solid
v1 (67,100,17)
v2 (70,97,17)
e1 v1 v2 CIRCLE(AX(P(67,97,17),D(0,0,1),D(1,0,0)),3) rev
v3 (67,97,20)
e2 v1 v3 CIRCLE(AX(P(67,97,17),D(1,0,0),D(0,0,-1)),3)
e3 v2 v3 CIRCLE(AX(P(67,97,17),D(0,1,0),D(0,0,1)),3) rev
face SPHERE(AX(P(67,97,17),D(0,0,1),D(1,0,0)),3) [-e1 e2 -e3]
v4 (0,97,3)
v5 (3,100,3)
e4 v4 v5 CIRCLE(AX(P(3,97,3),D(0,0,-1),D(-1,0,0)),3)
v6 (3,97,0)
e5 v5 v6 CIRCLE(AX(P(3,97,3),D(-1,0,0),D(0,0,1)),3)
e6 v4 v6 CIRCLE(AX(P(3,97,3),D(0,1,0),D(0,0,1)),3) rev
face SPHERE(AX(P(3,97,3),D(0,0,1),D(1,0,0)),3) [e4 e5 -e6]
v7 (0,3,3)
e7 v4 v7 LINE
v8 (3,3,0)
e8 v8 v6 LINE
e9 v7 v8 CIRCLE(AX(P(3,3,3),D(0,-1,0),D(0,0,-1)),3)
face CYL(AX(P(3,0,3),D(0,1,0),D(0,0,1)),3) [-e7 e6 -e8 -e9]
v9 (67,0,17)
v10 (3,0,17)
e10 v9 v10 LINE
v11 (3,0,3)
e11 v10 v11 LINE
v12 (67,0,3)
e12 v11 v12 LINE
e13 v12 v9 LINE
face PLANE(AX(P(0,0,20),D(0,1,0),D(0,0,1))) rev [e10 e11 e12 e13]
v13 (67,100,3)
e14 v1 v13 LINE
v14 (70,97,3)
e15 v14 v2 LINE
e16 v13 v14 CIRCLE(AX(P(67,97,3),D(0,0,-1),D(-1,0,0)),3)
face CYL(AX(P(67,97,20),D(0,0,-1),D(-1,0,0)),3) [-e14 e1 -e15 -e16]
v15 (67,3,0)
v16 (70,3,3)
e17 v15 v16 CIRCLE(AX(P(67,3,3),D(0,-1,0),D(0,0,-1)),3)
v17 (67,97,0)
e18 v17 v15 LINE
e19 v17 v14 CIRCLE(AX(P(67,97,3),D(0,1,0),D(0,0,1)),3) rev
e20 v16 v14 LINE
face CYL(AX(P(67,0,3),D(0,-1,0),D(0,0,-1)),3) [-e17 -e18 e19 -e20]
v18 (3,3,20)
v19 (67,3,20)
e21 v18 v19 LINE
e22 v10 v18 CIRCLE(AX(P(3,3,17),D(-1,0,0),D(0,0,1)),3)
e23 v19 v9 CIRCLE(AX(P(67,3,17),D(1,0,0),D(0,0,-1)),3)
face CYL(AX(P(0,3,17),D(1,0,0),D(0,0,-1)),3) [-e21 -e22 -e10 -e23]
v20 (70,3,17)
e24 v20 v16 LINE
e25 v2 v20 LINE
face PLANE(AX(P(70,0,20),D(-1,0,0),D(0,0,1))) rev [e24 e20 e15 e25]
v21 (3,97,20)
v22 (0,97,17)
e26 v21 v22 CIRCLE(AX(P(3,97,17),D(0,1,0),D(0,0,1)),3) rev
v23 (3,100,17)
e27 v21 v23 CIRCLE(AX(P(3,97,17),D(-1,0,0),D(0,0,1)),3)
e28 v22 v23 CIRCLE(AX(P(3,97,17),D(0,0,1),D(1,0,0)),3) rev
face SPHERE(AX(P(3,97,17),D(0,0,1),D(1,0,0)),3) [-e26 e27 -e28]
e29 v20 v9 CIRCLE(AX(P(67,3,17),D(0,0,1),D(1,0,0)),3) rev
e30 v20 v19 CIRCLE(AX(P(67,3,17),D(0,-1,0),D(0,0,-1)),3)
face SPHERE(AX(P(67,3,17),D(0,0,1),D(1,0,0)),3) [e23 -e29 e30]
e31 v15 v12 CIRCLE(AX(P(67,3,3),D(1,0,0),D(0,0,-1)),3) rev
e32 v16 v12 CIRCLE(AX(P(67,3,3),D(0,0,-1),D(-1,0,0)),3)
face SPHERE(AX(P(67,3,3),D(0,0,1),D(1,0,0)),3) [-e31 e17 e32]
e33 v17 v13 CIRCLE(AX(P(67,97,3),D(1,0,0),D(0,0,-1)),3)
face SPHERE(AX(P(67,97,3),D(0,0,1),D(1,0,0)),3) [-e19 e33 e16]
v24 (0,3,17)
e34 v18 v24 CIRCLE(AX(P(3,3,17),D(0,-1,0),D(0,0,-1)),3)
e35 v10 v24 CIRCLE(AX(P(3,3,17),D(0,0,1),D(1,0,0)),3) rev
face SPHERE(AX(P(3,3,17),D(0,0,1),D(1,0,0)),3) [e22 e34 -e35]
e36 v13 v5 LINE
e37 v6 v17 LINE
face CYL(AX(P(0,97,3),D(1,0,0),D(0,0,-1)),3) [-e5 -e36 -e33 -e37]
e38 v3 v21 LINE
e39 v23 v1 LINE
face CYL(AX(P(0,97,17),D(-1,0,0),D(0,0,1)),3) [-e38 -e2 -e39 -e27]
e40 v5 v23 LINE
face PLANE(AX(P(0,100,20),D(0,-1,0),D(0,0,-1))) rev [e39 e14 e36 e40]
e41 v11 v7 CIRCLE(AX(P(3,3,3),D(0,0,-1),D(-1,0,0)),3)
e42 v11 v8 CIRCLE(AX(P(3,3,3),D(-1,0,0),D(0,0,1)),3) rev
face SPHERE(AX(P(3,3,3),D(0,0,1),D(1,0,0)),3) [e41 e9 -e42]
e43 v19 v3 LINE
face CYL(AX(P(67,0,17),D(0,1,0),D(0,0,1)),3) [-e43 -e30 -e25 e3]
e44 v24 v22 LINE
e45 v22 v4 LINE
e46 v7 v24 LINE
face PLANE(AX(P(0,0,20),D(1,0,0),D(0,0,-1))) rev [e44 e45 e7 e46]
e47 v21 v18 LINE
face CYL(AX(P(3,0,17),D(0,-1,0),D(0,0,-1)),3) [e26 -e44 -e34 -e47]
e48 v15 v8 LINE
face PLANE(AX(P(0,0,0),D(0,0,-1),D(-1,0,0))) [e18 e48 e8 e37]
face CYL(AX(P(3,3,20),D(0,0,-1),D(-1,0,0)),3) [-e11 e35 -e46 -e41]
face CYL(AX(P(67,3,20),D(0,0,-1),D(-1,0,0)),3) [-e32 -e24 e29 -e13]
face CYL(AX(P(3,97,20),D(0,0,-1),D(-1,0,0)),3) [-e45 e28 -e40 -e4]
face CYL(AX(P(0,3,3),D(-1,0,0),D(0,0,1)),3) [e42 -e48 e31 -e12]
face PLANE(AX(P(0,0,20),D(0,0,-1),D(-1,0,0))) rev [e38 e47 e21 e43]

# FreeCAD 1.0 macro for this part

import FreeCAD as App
import Part
import Sketcher

V = App.Vector
Q = App.Units.Quantity


def add_polygon(sketch, points):
    """Adds a closed chain of lines whose ends are joined by coincident constraints."""
    first, n = sketch.GeometryCount, len(points)
    for a, b in zip(points, points[1:] + points[:1]):
        sketch.addGeometry(Part.LineSegment(App.Vector(*a, 0), App.Vector(*b, 0)), False)
    for i in range(n):
        sketch.addConstraint(Sketcher.Constraint("Coincident", first + i, 2, first + (i + 1) % n, 1))

doc = App.newDocument("Part")
body = doc.addObject("PartDesign::Body", "Body")

sketch1 = doc.addObject("Sketcher::SketchObject", "Sketch")
body.addObject(sketch1)
sketch1.AttachmentSupport = (doc.XY_Plane, [""])
sketch1.MapMode = "FlatFace"
add_polygon(sketch1, [(0, 100), (0, 0), (70, 0), (70, 100)])
sketch1.addConstraint(Sketcher.Constraint("Vertical", 0))
sketch1.addConstraint(Sketcher.Constraint("Horizontal", 1))
sketch1.addConstraint(Sketcher.Constraint("Vertical", 2))
sketch1.addConstraint(Sketcher.Constraint("Horizontal", 3))
sketch1.addConstraint(Sketcher.Constraint("Coincident", 0, 2, -1, 1))
sketch1.addConstraint(Sketcher.Constraint("DistanceX", 1, 1, 1, 2, Q("70 mm")))
sketch1.addConstraint(Sketcher.Constraint("DistanceY", 0, 2, 0, 1, Q("100 mm")))
pad1 = doc.addObject("PartDesign::Pad", "Pad")
body.addObject(pad1)
pad1.Profile = sketch1
pad1.Length = 20
doc.recompute()

fillet = doc.addObject("PartDesign::Fillet", "Fillet")
body.addObject(fillet)
fillet.Base = (pad1, ["Edge1"])
fillet.UseAllEdges = True
fillet.Radius = 3

doc.recompute()
